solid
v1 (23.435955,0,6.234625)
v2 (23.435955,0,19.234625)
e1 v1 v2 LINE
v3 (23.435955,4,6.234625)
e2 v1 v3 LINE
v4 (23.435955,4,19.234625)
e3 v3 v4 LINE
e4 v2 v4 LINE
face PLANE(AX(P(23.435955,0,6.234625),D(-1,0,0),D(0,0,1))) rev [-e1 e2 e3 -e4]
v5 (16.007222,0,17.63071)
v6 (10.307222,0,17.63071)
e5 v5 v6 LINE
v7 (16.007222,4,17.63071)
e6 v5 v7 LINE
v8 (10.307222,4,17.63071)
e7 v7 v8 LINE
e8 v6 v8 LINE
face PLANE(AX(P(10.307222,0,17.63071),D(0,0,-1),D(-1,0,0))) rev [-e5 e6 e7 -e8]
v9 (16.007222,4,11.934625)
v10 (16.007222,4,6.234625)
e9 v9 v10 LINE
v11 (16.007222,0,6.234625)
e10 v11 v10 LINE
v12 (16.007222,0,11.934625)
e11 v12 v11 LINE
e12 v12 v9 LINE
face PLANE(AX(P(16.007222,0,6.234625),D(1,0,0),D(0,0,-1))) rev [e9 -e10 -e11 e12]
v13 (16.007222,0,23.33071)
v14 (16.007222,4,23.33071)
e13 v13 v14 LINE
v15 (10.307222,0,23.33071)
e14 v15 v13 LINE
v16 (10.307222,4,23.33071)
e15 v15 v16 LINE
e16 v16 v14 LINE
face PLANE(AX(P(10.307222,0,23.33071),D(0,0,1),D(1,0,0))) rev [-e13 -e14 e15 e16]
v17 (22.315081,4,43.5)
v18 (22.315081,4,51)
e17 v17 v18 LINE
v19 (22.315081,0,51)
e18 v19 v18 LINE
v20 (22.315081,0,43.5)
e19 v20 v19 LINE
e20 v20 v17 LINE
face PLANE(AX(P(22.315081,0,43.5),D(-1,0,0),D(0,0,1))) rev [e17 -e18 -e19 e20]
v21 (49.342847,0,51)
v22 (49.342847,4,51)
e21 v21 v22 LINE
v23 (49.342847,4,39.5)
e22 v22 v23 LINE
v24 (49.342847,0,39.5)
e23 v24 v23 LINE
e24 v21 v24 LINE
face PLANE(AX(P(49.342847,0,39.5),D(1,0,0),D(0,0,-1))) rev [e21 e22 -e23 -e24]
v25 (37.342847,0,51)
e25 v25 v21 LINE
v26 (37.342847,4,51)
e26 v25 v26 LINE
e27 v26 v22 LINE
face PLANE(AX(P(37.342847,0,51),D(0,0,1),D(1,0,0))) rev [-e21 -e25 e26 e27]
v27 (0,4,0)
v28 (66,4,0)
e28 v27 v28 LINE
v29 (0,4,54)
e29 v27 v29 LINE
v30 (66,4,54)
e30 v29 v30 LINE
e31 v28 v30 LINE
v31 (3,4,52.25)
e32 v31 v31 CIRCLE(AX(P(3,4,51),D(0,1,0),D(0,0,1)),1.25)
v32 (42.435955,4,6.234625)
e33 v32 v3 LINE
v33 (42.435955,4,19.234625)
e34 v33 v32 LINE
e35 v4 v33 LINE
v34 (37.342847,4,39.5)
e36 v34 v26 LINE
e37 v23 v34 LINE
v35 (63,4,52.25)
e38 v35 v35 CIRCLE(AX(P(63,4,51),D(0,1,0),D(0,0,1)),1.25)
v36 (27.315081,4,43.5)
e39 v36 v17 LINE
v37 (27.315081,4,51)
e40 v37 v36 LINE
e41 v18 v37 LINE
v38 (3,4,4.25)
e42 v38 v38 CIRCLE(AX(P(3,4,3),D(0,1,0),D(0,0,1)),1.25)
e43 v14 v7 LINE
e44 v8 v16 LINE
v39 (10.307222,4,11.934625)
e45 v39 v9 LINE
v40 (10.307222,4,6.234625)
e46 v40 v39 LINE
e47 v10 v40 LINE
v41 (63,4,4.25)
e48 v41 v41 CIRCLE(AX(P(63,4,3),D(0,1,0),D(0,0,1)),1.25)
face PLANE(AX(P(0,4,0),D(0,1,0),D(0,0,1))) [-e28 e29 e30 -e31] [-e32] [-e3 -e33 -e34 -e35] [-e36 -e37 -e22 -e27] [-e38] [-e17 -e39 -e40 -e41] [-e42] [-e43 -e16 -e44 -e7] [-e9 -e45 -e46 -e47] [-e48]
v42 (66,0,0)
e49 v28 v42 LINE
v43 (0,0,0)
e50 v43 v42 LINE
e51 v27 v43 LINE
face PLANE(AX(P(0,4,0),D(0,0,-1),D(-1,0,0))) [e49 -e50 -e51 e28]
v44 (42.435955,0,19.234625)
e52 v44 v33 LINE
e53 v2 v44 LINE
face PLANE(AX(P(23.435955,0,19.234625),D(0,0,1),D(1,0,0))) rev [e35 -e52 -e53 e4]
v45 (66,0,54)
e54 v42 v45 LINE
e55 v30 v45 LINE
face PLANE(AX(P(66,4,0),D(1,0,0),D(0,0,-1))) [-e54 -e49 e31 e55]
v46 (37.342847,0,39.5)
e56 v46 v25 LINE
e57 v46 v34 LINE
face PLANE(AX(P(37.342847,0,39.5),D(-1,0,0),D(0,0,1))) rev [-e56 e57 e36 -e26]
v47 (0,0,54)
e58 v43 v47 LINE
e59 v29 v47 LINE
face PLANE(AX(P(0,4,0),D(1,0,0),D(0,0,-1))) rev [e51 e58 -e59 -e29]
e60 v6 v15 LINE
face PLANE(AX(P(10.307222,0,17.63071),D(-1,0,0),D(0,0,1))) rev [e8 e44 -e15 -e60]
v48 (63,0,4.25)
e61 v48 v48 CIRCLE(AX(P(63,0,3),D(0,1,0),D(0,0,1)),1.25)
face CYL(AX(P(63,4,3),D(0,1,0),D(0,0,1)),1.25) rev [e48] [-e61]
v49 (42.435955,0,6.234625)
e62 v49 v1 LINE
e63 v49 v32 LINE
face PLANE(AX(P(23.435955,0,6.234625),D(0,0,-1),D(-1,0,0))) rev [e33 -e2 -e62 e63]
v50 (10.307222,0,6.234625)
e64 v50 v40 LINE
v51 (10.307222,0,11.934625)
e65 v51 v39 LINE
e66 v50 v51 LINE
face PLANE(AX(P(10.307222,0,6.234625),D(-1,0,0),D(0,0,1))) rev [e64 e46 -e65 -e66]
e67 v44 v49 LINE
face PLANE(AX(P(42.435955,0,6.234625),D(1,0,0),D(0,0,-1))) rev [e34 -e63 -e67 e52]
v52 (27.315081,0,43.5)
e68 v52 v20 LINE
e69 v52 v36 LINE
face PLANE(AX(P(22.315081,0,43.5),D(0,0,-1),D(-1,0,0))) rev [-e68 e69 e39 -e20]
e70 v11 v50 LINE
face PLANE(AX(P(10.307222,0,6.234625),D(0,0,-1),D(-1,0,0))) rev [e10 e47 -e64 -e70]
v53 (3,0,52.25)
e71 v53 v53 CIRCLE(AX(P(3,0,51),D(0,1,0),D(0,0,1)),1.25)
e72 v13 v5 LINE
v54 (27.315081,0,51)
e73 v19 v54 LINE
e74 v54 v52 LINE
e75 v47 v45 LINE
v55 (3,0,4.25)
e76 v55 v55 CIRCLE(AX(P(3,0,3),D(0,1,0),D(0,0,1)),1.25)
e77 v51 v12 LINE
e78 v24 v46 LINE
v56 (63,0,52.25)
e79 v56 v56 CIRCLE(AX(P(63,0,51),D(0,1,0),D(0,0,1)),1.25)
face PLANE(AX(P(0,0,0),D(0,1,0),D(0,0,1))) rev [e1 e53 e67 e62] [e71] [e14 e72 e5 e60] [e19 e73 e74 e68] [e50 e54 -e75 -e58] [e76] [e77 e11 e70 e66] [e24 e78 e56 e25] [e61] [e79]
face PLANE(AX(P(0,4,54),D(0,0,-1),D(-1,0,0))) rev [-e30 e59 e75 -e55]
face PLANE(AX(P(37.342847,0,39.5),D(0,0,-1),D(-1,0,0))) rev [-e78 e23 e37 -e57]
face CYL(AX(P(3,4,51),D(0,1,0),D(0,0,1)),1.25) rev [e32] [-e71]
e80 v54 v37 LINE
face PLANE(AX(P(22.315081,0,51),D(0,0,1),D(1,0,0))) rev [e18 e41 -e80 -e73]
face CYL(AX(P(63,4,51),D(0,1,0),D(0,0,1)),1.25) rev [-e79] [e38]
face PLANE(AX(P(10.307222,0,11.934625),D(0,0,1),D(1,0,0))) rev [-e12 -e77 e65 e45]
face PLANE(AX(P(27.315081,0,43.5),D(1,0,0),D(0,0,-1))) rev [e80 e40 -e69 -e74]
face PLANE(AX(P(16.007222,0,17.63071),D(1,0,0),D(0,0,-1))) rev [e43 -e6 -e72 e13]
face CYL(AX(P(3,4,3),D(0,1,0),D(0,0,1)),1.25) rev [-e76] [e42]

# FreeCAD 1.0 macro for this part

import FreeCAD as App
import Part
import Sketcher
from FreeCAD import Vector


def add_polygon(sketch, points):
    """Adds a closed chain of lines whose ends are joined by coincident constraints."""
    first, n = sketch.GeometryCount, len(points)
    for a, b in zip(points, points[1:] + points[:1]):
        sketch.addGeometry(Part.LineSegment(App.Vector(*a, 0), App.Vector(*b, 0)), False)
    for i in range(n):
        sketch.addConstraint(Sketcher.Constraint("Coincident", first + i, 2, first + (i + 1) % n, 1))

doc = App.newDocument("Part")
body = doc.addObject("PartDesign::Body", "Body")

# Sketch on XZ plane
sketch1 = body.newObject("Sketcher::SketchObject", "Sketch")
sketch1.AttachmentSupport = (doc.getObject("XZ_Plane"), [""])
sketch1.MapMode = "FlatFace"
add_polygon(sketch1, [(0, 0), (0, 54), (66, 54), (66, 0)])  # lines 0-3
sketch1.addConstraint([
    Sketcher.Constraint("Vertical", 0),
    Sketcher.Constraint("Horizontal", 1),
    Sketcher.Constraint("Vertical", 2),
    Sketcher.Constraint("Horizontal", 3),
    Sketcher.Constraint("Coincident", 3, 2, -1, 1),
    Sketcher.Constraint("DistanceX", 1, 1, 1, 2, 66.0),
    Sketcher.Constraint("DistanceY", 0, 1, 0, 2, 54.0),
])
pad1 = body.newObject("PartDesign::Pad", "Pad")
pad1.Profile = sketch1
pad1.Length = 4
pad1.Reversed = True

# Sketch on XZ plane
sketch2 = body.newObject("Sketcher::SketchObject", "Sketch001")
sketch2.AttachmentSupport = (doc.getObject("XZ_Plane"), [""])
sketch2.MapMode = "FlatFace"
sketch2.AttachmentOffset = App.Placement(Vector(0, 0, -4), App.Rotation())
sketch2.addGeometry([
    Part.Circle(Vector(3, 3, 0), Vector(0, 0, 1), 1.25),
    Part.Circle(Vector(3, 51, 0), Vector(0, 0, 1), 1.25),
    Part.Circle(Vector(63, 51, 0), Vector(0, 0, 1), 1.25),
    Part.Circle(Vector(63, 3, 0), Vector(0, 0, 1), 1.25),
], False)
sketch2.addConstraint([
    Sketcher.Constraint("Equal", 0, 1),
    Sketcher.Constraint("Equal", 1, 2),
    Sketcher.Constraint("Equal", 2, 3),
    Sketcher.Constraint("Horizontal", 1, 3, 2, 3),
    Sketcher.Constraint("Horizontal", 0, 3, 3, 3),
    Sketcher.Constraint("Vertical", 0, 3, 1, 3),
    Sketcher.Constraint("Vertical", 2, 3, 3, 3),
    Sketcher.Constraint("Diameter", 0, 2.5),
    Sketcher.Constraint("DistanceX", -1, 1, 0, 3, 3.0),
    Sketcher.Constraint("DistanceY", -1, 1, 0, 3, 3.0),
    Sketcher.Constraint("DistanceY", -1, 1, 1, 3, 51.0),
    Sketcher.Constraint("DistanceX", -1, 1, 2, 3, 63.0),
])
doc.recompute()
hole = body.newObject("PartDesign::Hole", "Hole")
hole.Profile = sketch2
hole.ThreadType = "None"
hole.Diameter = 2.5
hole.DepthType = "ThroughAll"
hole.Reversed = True

# Sketch on XZ plane
sketch3 = body.newObject("Sketcher::SketchObject", "Sketch002")
sketch3.AttachmentSupport = (doc.getObject("XZ_Plane"), [""])
sketch3.MapMode = "FlatFace"
sketch3.AttachmentOffset = App.Placement(Vector(0, 0, -4), App.Rotation())
add_polygon(sketch3, [(22.315081, 43.5), (22.315081, 51), (27.315081, 51), (27.315081, 43.5)])  # lines 0-3
add_polygon(sketch3, [(10.307222, 6.234625), (10.307222, 11.934625), (16.007222, 11.934625), (16.007222, 6.234625)])  # lines 4-7
add_polygon(sketch3, [(10.307222, 17.63071), (10.307222, 23.33071), (16.007222, 23.33071), (16.007222, 17.63071)])  # lines 8-11
add_polygon(sketch3, [(23.435955, 6.234625), (23.435955, 19.234625), (42.435955, 19.234625), (42.435955, 6.234625)])  # lines 12-15
add_polygon(sketch3, [(37.342847, 39.5), (37.342847, 51), (49.342847, 51), (49.342847, 39.5)])  # lines 16-19
sketch3.addConstraint([
    Sketcher.Constraint("Vertical", 0),
    Sketcher.Constraint("Horizontal", 1),
    Sketcher.Constraint("Vertical", 2),
    Sketcher.Constraint("Horizontal", 3),
    Sketcher.Constraint("Vertical", 4),
    Sketcher.Constraint("Horizontal", 5),
    Sketcher.Constraint("Vertical", 6),
    Sketcher.Constraint("Horizontal", 7),
    Sketcher.Constraint("Vertical", 8),
    Sketcher.Constraint("Horizontal", 9),
    Sketcher.Constraint("Vertical", 10),
    Sketcher.Constraint("Horizontal", 11),
    Sketcher.Constraint("Vertical", 12),
    Sketcher.Constraint("Horizontal", 13),
    Sketcher.Constraint("Vertical", 14),
    Sketcher.Constraint("Horizontal", 15),
    Sketcher.Constraint("Vertical", 16),
    Sketcher.Constraint("Horizontal", 17),
    Sketcher.Constraint("Vertical", 18),
    Sketcher.Constraint("Horizontal", 19),
    Sketcher.Constraint("Horizontal", 7, 2, 14, 2),
    Sketcher.Constraint("Horizontal", 1, 2, 16, 2),
    Sketcher.Constraint("Vertical", 7, 2, 8, 2),
    Sketcher.Constraint("Vertical", 6, 2, 9, 2),
    Sketcher.Constraint("Equal", 11, 4),
    Sketcher.Constraint("Equal", 6, 8),
    Sketcher.Constraint("DistanceX", 1, 1, 1, 2, 5.0),
    Sketcher.Constraint("DistanceX", 13, 1, 13, 2, 19.0),
    Sketcher.Constraint("DistanceX", 17, 1, 17, 2, 12.0),
    Sketcher.Constraint("DistanceY", 12, 1, 12, 2, 13.0),
    Sketcher.Constraint("DistanceX", 5, 1, 5, 2, 5.7),
    Sketcher.Constraint("DistanceY", 0, 1, 0, 2, 7.5),
    Sketcher.Constraint("DistanceY", 16, 1, 16, 2, 11.5),
    Sketcher.Constraint("DistanceY", -1, 1, 0, 2, 51.0),
    Sketcher.Constraint("DistanceX", -1, 1, 0, 2, 22.315081),
    Sketcher.Constraint("DistanceY", -1, 1, 8, 2, 23.33071),
    Sketcher.Constraint("DistanceX", 4, 2, 3, 2, 12.007858),
    Sketcher.Constraint("DistanceX", 16, 2, 13, 2, 5.093108),
    Sketcher.Constraint("DistanceY", -1, 1, 4, 2, 11.934625),
    Sketcher.Constraint("DistanceX", -1, 1, 12, 2, 23.435955),
])
pocket1 = body.newObject("PartDesign::Pocket", "Pocket")
pocket1.Profile = sketch3
pocket1.Length = 4
pocket1.Reversed = True

doc.recompute()
